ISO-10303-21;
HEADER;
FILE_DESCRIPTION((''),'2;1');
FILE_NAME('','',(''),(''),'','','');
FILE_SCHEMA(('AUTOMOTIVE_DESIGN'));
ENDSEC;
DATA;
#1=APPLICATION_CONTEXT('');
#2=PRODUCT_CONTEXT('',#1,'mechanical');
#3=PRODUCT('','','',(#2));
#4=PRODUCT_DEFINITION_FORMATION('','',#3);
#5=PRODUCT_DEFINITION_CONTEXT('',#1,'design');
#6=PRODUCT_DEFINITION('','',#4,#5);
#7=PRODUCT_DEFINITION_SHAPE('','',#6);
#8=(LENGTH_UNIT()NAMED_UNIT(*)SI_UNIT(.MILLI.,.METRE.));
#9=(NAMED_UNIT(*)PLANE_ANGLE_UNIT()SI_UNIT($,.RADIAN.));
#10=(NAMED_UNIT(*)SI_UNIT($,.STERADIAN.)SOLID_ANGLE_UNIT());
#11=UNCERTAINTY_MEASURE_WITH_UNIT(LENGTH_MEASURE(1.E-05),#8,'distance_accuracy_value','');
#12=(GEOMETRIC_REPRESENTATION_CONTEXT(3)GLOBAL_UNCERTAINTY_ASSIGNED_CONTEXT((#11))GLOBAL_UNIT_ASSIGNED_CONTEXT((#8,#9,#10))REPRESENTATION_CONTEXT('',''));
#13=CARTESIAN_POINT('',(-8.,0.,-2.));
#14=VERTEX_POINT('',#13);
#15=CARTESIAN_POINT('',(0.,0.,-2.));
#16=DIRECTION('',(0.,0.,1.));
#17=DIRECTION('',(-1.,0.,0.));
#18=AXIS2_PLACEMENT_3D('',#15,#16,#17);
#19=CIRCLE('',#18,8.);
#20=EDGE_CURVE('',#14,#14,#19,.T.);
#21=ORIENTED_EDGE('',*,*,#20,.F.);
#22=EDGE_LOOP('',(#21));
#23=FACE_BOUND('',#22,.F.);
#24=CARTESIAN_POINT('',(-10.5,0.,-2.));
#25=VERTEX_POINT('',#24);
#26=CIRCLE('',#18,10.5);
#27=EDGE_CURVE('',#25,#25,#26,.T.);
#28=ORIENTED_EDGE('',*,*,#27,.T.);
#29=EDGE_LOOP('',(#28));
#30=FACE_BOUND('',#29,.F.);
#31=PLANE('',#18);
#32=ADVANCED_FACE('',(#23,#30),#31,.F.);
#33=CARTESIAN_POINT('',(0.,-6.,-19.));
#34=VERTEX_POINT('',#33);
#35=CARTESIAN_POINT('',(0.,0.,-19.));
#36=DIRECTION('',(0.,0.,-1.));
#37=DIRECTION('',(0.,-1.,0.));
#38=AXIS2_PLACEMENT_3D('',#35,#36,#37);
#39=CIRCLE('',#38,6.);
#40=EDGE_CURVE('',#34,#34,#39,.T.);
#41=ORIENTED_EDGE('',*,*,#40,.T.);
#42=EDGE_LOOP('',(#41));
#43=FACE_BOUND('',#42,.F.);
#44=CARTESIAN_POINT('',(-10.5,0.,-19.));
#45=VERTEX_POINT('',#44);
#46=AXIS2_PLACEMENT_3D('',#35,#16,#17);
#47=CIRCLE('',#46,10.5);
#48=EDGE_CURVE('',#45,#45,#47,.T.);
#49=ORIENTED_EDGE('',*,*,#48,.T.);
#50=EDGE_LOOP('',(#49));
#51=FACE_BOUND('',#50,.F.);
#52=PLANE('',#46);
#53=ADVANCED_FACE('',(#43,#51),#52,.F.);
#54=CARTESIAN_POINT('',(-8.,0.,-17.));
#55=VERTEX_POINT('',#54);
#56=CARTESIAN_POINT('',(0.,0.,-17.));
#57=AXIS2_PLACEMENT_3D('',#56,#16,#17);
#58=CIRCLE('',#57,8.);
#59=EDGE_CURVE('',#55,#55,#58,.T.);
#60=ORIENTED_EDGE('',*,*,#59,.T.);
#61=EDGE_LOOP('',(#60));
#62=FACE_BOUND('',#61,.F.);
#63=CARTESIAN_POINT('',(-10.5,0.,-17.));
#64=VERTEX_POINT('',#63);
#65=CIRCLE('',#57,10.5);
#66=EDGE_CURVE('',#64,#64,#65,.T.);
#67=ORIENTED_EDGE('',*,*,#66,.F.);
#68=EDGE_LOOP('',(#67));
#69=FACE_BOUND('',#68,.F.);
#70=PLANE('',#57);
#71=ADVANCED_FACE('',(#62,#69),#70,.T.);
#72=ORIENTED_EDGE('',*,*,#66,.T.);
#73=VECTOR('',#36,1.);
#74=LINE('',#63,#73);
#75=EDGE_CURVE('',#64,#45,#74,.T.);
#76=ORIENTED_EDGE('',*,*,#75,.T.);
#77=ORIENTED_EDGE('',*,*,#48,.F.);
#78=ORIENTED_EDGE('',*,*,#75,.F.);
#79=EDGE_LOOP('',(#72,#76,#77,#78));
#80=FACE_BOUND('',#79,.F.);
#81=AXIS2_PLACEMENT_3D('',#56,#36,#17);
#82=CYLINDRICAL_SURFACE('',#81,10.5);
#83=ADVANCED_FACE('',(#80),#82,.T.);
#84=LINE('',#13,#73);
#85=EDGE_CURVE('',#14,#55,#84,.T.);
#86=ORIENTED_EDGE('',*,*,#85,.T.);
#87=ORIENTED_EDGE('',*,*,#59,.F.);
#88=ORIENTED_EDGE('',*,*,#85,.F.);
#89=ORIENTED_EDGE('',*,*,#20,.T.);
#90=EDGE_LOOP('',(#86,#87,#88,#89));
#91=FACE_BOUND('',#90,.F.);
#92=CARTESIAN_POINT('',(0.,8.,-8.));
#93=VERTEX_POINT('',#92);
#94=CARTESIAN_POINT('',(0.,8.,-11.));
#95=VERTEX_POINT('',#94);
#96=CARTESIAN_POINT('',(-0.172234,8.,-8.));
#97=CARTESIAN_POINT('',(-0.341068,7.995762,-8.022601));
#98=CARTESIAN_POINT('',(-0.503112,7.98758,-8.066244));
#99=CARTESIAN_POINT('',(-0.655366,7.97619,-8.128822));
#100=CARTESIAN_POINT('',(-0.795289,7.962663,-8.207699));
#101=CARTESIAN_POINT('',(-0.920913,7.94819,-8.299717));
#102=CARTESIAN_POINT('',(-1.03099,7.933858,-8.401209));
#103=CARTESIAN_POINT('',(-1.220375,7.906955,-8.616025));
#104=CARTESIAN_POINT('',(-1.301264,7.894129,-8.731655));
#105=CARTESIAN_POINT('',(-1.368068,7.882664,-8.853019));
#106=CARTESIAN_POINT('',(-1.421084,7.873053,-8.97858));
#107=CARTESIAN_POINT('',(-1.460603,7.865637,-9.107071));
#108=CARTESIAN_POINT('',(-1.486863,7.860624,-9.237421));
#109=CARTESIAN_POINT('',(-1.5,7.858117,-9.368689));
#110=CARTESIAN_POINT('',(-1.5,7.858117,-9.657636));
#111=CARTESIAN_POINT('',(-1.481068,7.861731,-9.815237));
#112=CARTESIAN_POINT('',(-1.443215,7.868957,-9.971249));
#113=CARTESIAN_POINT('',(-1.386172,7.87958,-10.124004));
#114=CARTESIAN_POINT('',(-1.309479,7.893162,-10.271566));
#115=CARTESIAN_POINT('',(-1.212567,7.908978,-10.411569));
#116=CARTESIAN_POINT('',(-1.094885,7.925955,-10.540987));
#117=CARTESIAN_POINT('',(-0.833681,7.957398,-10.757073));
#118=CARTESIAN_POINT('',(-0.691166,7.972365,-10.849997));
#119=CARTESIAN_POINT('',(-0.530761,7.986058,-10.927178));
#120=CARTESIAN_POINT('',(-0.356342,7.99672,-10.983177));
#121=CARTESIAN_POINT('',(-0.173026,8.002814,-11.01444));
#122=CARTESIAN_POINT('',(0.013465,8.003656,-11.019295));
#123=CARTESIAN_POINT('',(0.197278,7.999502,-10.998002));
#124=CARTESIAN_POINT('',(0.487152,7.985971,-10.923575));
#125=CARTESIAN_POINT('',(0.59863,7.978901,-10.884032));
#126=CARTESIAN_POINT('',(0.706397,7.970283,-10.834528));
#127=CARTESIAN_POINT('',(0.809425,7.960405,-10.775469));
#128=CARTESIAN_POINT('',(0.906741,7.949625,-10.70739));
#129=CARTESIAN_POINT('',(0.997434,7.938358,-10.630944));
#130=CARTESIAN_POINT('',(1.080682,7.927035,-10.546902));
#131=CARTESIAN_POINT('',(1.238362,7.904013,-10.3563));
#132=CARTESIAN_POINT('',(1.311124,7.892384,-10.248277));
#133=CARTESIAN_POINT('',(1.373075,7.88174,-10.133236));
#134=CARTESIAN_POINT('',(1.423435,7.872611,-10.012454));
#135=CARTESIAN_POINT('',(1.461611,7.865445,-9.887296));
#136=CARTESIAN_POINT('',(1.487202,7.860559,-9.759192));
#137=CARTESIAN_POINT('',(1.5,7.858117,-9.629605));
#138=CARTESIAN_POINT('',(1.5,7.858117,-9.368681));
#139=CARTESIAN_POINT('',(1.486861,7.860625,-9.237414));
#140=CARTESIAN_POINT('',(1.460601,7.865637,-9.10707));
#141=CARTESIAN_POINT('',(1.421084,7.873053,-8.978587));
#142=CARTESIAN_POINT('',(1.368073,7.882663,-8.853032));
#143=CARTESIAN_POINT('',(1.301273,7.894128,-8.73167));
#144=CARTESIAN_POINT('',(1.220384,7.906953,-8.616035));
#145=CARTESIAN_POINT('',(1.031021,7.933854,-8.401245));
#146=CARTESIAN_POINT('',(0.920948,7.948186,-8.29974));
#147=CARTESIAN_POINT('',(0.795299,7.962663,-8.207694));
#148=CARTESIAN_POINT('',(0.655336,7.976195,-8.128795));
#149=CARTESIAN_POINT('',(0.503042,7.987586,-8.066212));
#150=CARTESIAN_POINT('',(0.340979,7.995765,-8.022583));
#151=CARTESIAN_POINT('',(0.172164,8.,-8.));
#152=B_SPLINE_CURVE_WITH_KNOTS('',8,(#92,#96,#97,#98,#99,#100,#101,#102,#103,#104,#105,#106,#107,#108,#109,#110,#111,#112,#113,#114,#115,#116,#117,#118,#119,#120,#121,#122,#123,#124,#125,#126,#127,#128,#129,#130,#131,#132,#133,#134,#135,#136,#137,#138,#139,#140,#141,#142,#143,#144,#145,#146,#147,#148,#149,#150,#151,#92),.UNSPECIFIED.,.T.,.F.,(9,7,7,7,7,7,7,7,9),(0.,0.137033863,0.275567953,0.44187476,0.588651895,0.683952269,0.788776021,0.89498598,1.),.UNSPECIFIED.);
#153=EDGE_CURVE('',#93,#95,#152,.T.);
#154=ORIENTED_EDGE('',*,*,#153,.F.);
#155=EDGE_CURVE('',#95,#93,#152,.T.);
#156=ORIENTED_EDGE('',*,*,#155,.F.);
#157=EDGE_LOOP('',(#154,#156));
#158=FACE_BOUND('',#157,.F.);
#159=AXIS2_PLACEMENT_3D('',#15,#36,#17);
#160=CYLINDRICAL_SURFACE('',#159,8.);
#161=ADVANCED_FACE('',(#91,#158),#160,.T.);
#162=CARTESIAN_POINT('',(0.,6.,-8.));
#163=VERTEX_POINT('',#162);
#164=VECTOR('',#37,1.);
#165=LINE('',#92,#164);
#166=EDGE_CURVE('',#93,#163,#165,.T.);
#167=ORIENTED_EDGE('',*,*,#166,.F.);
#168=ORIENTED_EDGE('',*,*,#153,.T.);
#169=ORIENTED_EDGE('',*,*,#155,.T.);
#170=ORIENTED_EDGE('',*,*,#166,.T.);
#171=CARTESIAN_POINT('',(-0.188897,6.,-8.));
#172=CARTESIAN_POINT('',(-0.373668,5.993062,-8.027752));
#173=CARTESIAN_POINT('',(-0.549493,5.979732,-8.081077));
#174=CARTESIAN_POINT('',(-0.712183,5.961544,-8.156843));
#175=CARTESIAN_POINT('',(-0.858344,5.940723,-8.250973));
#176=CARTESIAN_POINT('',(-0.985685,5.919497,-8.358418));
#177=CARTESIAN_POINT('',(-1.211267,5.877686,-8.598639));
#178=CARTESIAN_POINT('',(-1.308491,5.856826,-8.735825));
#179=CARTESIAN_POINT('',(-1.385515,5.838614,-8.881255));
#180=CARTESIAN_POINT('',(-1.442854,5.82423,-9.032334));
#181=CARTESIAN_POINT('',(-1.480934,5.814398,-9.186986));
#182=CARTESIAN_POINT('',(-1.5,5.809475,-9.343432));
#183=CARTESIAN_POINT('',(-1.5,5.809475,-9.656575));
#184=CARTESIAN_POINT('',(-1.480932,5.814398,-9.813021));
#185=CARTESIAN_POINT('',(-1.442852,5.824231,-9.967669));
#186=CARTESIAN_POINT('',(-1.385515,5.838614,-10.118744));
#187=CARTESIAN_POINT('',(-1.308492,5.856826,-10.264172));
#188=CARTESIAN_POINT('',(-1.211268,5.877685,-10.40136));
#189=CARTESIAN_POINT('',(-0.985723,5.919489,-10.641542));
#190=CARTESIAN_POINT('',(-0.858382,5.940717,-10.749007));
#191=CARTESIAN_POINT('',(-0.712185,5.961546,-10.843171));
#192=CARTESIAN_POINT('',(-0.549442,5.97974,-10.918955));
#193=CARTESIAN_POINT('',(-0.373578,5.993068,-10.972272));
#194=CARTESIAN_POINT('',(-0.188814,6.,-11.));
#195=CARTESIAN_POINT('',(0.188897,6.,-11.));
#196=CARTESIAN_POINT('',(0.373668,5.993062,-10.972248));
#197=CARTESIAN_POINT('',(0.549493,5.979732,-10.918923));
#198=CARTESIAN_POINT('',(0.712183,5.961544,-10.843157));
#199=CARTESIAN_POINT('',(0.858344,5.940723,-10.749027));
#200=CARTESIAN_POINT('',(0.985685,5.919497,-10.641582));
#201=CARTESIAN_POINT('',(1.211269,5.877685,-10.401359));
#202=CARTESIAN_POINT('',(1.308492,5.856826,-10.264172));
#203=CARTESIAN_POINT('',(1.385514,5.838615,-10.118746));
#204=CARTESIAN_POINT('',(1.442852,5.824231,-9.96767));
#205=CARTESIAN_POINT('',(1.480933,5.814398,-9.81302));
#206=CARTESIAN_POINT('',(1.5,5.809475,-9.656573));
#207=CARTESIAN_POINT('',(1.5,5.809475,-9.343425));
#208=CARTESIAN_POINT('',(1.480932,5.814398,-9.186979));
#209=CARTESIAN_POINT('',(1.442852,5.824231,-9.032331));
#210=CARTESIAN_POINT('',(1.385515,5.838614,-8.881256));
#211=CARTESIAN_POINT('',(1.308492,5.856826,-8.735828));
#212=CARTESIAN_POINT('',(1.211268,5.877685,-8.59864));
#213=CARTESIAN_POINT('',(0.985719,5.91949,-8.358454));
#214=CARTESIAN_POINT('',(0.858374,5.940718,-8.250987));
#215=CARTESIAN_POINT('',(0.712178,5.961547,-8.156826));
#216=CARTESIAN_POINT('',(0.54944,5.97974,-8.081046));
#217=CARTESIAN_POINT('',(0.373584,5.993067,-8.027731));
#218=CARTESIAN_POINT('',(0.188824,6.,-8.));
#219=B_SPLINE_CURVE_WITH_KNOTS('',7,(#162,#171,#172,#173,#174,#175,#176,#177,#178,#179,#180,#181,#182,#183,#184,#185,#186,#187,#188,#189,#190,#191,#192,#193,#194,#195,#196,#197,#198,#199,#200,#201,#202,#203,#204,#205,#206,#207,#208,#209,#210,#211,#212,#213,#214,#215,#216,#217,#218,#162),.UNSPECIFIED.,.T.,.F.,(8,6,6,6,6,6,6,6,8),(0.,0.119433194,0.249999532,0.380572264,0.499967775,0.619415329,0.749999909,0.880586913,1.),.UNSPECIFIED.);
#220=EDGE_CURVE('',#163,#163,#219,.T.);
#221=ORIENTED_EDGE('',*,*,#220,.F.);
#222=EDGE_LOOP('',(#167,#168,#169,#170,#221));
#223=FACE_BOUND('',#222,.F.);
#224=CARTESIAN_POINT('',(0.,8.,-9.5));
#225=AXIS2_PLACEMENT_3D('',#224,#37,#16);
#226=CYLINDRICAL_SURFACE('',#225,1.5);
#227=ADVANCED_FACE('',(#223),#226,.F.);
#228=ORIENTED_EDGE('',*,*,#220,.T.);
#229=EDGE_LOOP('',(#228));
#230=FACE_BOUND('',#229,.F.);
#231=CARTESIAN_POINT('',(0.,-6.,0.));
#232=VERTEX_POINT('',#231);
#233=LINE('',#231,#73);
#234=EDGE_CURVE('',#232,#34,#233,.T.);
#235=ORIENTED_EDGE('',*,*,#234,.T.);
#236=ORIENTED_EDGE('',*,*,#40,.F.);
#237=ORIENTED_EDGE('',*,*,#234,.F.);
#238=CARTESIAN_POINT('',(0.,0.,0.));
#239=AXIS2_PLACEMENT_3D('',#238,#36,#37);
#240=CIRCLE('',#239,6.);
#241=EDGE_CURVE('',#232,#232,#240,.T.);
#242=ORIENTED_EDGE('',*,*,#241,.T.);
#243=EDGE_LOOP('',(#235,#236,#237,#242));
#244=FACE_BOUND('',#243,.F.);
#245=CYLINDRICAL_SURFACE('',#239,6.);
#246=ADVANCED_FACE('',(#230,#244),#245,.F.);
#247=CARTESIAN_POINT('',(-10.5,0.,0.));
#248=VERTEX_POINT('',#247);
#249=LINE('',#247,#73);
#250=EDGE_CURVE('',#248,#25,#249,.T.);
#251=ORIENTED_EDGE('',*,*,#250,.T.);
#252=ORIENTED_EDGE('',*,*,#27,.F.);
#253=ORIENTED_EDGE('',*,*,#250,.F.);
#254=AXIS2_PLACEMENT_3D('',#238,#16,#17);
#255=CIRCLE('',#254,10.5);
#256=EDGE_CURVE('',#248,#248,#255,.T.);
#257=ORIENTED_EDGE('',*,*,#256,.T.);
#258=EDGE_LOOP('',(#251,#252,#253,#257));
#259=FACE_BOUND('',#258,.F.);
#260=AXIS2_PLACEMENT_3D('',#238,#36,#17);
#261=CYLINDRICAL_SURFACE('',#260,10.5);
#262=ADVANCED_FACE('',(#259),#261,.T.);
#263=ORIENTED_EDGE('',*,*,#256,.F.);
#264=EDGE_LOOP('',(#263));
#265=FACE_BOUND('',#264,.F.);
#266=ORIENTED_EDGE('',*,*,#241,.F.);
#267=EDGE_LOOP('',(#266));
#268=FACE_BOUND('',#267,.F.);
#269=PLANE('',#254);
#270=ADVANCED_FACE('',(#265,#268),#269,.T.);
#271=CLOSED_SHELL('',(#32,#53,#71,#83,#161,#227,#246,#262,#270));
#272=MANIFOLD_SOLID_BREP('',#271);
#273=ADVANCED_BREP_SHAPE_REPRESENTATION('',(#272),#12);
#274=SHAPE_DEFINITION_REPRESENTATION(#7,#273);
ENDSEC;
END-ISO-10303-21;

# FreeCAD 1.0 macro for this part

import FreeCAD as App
import Part
import Sketcher
Q = App.Units.Quantity

doc = App.newDocument("Part")
body = doc.addObject("PartDesign::Body", "Body")

sketch1 = doc.addObject("Sketcher::SketchObject", "Sketch")
body.addObject(sketch1)
sketch1.AttachmentSupport = (doc.XZ_Plane, [""])
sketch1.MapMode = "FlatFace"
sketch1.addGeometry([
    Part.LineSegment(App.Vector(-10.5, 0, 0), App.Vector(0, 0, 0)),
    Part.LineSegment(App.Vector(0, 0, 0), App.Vector(0, -19, 0)),
    Part.LineSegment(App.Vector(0, -19, 0), App.Vector(-10.5, -19, 0)),
    Part.LineSegment(App.Vector(-10.5, -19, 0), App.Vector(-10.5, -17, 0)),
    Part.LineSegment(App.Vector(-10.5, -17, 0), App.Vector(-8, -17, 0)),
    Part.LineSegment(App.Vector(-8, -17, 0), App.Vector(-8, -2, 0)),
    Part.LineSegment(App.Vector(-8, -2, 0), App.Vector(-10.5, -2, 0)),
    Part.LineSegment(App.Vector(-10.5, -2, 0), App.Vector(-10.5, 0, 0)),
], False)
sketch1.addConstraint([
    Sketcher.Constraint("Coincident", 0, 2, 1, 1),
    Sketcher.Constraint("Coincident", 1, 2, 2, 1),
    Sketcher.Constraint("Coincident", 2, 2, 3, 1),
    Sketcher.Constraint("Coincident", 3, 2, 4, 1),
    Sketcher.Constraint("Coincident", 4, 2, 5, 1),
    Sketcher.Constraint("Coincident", 5, 2, 6, 1),
    Sketcher.Constraint("Coincident", 6, 2, 7, 1),
    Sketcher.Constraint("Coincident", 7, 2, 0, 1),
    Sketcher.Constraint("Horizontal", 0),
    Sketcher.Constraint("Vertical", 1),
    Sketcher.Constraint("Horizontal", 2),
    Sketcher.Constraint("Vertical", 3),
    Sketcher.Constraint("Horizontal", 4),
    Sketcher.Constraint("Vertical", 5),
    Sketcher.Constraint("Horizontal", 6),
    Sketcher.Constraint("Vertical", 7),
    Sketcher.Constraint("Coincident", 0, 2, -1, 1),
    Sketcher.Constraint("Vertical", 3, 2, 6, 2),
    Sketcher.Constraint("Equal", 3, 7),
    Sketcher.Constraint("DistanceY", 1, 2, 1, 1, Q("19 mm")),
    Sketcher.Constraint("DistanceY", 3, 1, 3, 2, Q("2 mm")),
    Sketcher.Constraint("DistanceX", 0, 1, 0, 2, Q("10.5 mm")),
    Sketcher.Constraint("DistanceX", 4, 1, 4, 2, Q("2.5 mm")),
])
revolution = doc.addObject("PartDesign::Revolution", "Revolution")
body.addObject(revolution)
revolution.Profile = sketch1
revolution.ReferenceAxis = (sketch1, ["V_Axis"])
revolution.Angle = 360

sketch2 = doc.addObject("Sketcher::SketchObject", "Sketch001")
body.addObject(sketch2)
sketch2.AttachmentSupport = (doc.XY_Plane, [""])
sketch2.MapMode = "FlatFace"
sketch2.addGeometry(Part.Circle(App.Vector(0, 0, 0), App.Vector(0, 0, 1), 6), False)
sketch2.addConstraint([
    Sketcher.Constraint("Coincident", 0, 3, -1, 1),
    Sketcher.Constraint("Diameter", 0, Q("12 mm")),
])
doc.recompute()
hole = doc.addObject("PartDesign::Hole", "Hole")
body.addObject(hole)
hole.Profile = sketch2
hole.ThreadType = "None"
hole.Diameter = 12
hole.DepthType = "ThroughAll"

sketch3 = doc.addObject("Sketcher::SketchObject", "Sketch002")
body.addObject(sketch3)
sketch3.AttachmentSupport = (doc.XZ_Plane, [""])
sketch3.MapMode = "FlatFace"
sketch3.AttachmentOffset = App.Placement(App.Vector(0, 0, -8), App.Rotation())
sketch3.addGeometry(Part.Circle(App.Vector(0, -9.5, 0), App.Vector(0, 0, 1), 1.5), False)
sketch3.addConstraint([
    Sketcher.Constraint("PointOnObject", 0, 3, -2),
    Sketcher.Constraint("Diameter", 0, Q("3 mm")),
    Sketcher.Constraint("DistanceY", 0, 3, -1, 1, Q("9.5 mm")),
])
doc.recompute()
hole2 = doc.addObject("PartDesign::Hole", "Hole001")
body.addObject(hole2)
hole2.Profile = sketch3
hole2.ThreadType = "None"
hole2.Diameter = 3
hole2.DepthType = "Dimension"
hole2.Depth = 5
hole2.DrillPoint = "Flat"
hole2.Reversed = True

doc.recompute()
